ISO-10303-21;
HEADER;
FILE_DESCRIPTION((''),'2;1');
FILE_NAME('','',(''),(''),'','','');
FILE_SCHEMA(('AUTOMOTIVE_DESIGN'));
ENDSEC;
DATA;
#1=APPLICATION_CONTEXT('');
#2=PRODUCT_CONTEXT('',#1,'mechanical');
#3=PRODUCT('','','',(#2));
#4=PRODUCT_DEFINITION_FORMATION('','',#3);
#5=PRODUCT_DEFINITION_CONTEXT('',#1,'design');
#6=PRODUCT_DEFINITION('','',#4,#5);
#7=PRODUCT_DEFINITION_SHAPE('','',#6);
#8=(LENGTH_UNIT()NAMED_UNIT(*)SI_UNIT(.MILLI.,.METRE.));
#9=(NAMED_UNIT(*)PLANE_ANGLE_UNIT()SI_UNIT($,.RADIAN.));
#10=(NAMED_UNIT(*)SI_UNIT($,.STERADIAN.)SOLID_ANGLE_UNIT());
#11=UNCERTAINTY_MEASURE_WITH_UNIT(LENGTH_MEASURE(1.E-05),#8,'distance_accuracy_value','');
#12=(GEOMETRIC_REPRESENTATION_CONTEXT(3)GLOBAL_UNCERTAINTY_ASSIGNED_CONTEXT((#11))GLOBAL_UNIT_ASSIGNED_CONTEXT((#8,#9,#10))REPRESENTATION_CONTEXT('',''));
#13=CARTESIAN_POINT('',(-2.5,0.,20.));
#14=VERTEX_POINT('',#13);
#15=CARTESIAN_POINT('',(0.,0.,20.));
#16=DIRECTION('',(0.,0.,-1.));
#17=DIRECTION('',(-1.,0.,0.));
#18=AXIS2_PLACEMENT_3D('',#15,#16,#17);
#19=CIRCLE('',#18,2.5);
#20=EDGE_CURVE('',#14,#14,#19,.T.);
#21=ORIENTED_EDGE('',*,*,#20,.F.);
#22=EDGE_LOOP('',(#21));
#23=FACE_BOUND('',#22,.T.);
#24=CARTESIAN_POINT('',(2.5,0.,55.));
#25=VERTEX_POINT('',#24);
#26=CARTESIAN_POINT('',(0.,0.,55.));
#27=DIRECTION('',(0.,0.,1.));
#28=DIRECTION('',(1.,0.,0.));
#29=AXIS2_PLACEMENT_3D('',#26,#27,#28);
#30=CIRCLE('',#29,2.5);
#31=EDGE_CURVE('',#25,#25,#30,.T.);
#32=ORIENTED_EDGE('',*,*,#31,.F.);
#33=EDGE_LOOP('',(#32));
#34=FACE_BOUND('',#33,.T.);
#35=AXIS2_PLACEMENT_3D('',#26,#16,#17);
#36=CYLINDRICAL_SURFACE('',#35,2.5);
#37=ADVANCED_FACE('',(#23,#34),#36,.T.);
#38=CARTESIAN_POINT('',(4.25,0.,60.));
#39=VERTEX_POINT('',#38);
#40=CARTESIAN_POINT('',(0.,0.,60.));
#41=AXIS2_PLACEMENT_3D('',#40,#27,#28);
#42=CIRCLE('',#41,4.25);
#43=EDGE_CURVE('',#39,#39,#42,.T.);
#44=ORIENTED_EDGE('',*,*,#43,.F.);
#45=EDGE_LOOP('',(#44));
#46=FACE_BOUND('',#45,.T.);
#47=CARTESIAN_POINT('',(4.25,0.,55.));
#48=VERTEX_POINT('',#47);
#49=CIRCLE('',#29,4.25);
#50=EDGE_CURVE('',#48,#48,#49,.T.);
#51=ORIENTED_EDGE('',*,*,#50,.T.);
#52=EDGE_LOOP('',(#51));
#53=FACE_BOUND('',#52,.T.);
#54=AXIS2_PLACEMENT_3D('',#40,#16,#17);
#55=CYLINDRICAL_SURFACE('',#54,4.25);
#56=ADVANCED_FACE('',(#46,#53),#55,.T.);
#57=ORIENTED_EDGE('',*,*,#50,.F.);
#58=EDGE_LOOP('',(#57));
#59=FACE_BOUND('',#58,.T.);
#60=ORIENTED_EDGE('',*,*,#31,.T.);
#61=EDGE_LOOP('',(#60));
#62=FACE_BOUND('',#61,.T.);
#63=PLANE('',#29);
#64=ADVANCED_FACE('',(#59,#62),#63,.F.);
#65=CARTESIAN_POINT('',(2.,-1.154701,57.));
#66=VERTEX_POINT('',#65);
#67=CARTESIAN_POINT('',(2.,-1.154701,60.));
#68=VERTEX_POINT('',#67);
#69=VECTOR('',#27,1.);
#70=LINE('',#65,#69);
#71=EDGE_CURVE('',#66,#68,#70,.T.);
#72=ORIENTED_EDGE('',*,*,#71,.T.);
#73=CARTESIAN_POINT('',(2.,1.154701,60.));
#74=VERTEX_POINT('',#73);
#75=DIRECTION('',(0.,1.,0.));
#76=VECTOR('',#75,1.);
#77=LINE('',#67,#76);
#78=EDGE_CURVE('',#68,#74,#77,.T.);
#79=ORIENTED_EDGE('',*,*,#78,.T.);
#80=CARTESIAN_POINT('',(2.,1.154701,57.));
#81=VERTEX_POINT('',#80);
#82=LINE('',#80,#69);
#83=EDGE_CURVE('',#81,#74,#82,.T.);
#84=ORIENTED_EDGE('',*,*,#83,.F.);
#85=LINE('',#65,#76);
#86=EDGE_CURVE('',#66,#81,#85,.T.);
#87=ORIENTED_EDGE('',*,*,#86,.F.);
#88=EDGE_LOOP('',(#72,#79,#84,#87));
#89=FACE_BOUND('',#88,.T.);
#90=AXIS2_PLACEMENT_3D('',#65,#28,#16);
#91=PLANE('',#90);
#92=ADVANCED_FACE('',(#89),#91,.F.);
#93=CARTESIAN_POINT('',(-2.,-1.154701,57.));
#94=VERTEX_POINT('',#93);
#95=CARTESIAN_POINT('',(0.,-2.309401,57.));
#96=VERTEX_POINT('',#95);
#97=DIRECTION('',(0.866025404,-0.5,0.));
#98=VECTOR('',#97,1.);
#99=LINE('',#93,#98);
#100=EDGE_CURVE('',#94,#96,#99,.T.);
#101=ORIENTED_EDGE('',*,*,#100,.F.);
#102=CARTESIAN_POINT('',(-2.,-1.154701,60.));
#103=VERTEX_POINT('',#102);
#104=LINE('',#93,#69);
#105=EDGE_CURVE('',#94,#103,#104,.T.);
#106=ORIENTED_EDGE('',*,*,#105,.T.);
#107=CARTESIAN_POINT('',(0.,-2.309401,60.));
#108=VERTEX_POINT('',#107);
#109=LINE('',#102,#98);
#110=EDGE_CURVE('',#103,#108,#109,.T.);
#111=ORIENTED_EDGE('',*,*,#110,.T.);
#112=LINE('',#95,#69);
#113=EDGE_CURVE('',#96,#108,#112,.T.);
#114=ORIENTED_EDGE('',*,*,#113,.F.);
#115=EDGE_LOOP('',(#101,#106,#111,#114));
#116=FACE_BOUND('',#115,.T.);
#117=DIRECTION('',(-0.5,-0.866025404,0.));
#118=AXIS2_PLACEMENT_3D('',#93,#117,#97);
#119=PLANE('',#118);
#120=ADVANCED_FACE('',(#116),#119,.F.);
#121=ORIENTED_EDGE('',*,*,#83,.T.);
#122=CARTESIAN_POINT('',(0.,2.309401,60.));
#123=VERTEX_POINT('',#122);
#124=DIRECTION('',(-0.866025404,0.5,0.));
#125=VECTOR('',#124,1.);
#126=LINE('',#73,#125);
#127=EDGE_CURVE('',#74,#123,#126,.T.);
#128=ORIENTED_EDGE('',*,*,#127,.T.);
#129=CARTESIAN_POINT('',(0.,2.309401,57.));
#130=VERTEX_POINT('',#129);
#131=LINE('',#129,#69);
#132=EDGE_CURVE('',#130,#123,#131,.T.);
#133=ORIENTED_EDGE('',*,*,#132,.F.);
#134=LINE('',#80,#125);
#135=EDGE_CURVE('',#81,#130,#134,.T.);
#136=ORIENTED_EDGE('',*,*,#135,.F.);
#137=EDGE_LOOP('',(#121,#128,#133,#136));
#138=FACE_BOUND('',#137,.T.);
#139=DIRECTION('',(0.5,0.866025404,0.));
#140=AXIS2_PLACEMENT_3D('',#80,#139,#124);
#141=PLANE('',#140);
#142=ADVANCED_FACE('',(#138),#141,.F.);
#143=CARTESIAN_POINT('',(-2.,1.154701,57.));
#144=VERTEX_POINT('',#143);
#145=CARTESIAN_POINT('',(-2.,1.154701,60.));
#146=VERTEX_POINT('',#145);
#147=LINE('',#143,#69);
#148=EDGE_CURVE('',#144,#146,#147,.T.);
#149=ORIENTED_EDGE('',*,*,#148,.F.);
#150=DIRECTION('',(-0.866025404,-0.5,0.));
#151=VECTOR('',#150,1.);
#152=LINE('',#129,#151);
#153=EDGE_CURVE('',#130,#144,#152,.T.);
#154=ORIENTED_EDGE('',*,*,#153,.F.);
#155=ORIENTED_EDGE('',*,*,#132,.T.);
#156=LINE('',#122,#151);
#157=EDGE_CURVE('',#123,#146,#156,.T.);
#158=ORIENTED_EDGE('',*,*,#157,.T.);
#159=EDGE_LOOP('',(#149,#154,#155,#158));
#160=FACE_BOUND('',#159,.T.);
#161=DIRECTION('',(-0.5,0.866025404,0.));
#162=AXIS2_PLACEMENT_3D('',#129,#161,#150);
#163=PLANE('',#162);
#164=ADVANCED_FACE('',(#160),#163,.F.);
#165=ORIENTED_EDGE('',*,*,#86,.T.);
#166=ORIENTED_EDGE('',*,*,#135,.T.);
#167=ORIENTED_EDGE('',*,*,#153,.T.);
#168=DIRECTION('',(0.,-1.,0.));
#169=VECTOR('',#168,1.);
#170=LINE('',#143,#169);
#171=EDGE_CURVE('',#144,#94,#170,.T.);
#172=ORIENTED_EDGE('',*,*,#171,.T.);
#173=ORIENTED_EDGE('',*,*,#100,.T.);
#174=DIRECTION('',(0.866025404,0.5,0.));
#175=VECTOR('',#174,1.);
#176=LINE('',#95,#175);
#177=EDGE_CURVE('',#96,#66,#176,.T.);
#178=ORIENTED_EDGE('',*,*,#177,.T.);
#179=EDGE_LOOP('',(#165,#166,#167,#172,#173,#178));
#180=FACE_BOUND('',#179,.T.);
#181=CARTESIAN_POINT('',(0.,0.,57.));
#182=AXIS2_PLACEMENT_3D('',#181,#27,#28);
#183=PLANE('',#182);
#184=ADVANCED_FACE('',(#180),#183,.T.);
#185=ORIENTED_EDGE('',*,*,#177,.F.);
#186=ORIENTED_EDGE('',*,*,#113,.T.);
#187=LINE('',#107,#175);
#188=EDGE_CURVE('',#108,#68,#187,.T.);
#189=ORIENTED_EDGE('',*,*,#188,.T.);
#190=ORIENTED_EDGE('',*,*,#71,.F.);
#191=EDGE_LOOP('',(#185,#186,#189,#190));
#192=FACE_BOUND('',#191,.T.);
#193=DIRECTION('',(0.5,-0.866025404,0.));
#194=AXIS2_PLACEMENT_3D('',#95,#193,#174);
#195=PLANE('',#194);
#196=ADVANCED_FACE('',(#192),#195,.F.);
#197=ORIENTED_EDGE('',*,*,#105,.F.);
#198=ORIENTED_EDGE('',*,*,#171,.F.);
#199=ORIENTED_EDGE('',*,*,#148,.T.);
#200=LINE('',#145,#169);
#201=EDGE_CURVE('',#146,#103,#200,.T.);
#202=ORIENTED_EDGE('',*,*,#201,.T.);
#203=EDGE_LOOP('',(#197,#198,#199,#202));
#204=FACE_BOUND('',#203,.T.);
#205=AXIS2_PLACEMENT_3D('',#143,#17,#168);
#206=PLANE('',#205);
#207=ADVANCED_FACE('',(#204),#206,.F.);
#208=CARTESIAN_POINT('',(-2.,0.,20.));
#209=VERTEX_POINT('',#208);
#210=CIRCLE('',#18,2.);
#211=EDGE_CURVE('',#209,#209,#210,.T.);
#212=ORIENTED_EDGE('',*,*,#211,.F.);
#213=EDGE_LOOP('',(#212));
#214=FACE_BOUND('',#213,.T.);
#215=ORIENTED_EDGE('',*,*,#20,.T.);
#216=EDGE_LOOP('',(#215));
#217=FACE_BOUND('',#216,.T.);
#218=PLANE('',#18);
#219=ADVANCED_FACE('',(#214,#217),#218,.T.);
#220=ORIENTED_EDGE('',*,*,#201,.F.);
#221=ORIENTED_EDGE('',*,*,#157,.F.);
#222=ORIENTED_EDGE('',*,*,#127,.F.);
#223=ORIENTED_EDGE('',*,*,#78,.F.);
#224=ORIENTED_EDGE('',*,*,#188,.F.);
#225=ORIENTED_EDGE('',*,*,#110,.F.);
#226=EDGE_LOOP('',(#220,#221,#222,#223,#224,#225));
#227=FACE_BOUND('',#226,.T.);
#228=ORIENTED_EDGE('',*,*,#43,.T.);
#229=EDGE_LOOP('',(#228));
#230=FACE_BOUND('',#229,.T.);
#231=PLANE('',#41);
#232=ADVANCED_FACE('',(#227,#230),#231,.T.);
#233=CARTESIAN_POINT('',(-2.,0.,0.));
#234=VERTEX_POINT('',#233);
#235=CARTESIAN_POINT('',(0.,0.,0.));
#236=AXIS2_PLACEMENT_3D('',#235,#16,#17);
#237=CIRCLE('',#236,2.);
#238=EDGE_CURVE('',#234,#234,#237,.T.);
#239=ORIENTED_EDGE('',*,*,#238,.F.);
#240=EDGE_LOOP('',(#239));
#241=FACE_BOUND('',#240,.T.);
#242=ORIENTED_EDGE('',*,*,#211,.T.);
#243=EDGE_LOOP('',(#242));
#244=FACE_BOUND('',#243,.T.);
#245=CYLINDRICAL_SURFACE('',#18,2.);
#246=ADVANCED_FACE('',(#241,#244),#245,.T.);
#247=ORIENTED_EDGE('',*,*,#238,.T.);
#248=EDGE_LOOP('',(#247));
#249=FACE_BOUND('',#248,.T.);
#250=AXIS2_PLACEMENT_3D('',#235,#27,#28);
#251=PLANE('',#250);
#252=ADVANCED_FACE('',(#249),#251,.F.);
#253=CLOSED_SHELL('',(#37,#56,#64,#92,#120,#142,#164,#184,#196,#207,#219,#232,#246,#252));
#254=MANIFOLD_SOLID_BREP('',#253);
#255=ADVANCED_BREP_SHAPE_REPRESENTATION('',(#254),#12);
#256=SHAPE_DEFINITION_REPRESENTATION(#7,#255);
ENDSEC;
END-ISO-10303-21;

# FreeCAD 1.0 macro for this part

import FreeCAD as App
import Part
import Sketcher

V = App.Vector
Q = App.Units.Quantity


def add_polygon(sketch, points):
    """Adds a closed chain of lines whose ends are joined by coincident constraints."""
    first, n = sketch.GeometryCount, len(points)
    for a, b in zip(points, points[1:] + points[:1]):
        sketch.addGeometry(Part.LineSegment(App.Vector(*a, 0), App.Vector(*b, 0)), False)
    for i in range(n):
        sketch.addConstraint(Sketcher.Constraint("Coincident", first + i, 2, first + (i + 1) % n, 1))

doc = App.newDocument("Part")
body = doc.addObject("PartDesign::Body", "Body")

sketch1 = body.newObject("Sketcher::SketchObject", "Sketch")
sketch1.AttachmentSupport = (doc.getObject("XY_Plane"), [""])
sketch1.MapMode = "FlatFace"
sketch1.addGeometry(Part.Circle(V(0, 0, 0), V(0, 0, 1), 2.5), False)
sketch1.addConstraint(Sketcher.Constraint("Coincident", 0, 3, -1, 1))
sketch1.addConstraint(Sketcher.Constraint("Diameter", 0, Q("5 mm")))
pad1 = body.newObject("PartDesign::Pad", "Pad")
pad1.Profile = sketch1
pad1.Length = 55

sketch2 = body.newObject("Sketcher::SketchObject", "Sketch001")
sketch2.AttachmentSupport = (doc.getObject("XY_Plane"), [""])
sketch2.MapMode = "FlatFace"
sketch2.AttachmentOffset = App.Placement(V(0, 0, 55), App.Rotation())
sketch2.addGeometry(Part.Circle(V(0, 0, 0), V(0, 0, 1), 4.2), False)
sketch2.addConstraint(Sketcher.Constraint("Coincident", 0, 3, -1, 1))
sketch2.addConstraint(Sketcher.Constraint("Diameter", 0, Q("8.5 mm")))
pad2 = body.newObject("PartDesign::Pad", "Pad001")
pad2.Profile = sketch2
pad2.Length = 5

sketch3 = body.newObject("Sketcher::SketchObject", "Sketch002")
sketch3.AttachmentSupport = (doc.getObject("XY_Plane"), [""])
sketch3.MapMode = "FlatFace"
sketch3.AttachmentOffset = App.Placement(V(0, 0, 60), App.Rotation())
add_polygon(sketch3, [(0, 2.3), (-2, 1.2), (-2, -1.2), (0, -2.3), (2, -1.2), (2, 1.2)])
sketch3.addConstraint(Sketcher.Constraint("Vertical", 1))
sketch3.addConstraint(Sketcher.Constraint("Vertical", 4))
sketch3.addConstraint(Sketcher.Constraint("Symmetric", 0, 2, 3, 2, -1, 1))
sketch3.addConstraint(Sketcher.Constraint("Symmetric", 2, 2, 5, 2, -1, 1))
sketch3.addConstraint(Sketcher.Constraint("PointOnObject", 2, 2, -2))
sketch3.addConstraint(Sketcher.Constraint("Parallel", 2, 5))
sketch3.addConstraint(Sketcher.Constraint("Horizontal", 1, 2, 3, 2))
sketch3.addConstraint(Sketcher.Constraint("Angle", 0, Q("-150 deg")))
sketch3.addConstraint(Sketcher.Constraint("DistanceX", 0, 2, -1, 1, Q("2 mm")))
sketch3.addConstraint(Sketcher.Constraint("DistanceY", 1, 2, 1, 1, Q("2.309401 mm")))
pocket1 = body.newObject("PartDesign::Pocket", "Pocket")
pocket1.Profile = sketch3
pocket1.Length = 3

sketch4 = body.newObject("Sketcher::SketchObject", "Sketch003")
sketch4.AttachmentSupport = (doc.getObject("XY_Plane"), [""])
sketch4.MapMode = "FlatFace"
sketch4.addGeometry(Part.Circle(V(0, 0, 0), V(0, 0, 1), 2.5), False)
sketch4.addGeometry(Part.Circle(V(0, 0, 0), V(0, 0, 1), 2), False)
sketch4.addConstraint(Sketcher.Constraint("Coincident", 0, 3, -1, 1))
sketch4.addConstraint(Sketcher.Constraint("Coincident", 1, 3, -1, 1))
sketch4.addConstraint(Sketcher.Constraint("Diameter", 0, Q("5 mm")))
sketch4.addConstraint(Sketcher.Constraint("Diameter", 1, Q("4 mm")))
pocket2 = body.newObject("PartDesign::Pocket", "Pocket001")
pocket2.Profile = sketch4
pocket2.Length = 20
pocket2.Reversed = True

doc.recompute()
